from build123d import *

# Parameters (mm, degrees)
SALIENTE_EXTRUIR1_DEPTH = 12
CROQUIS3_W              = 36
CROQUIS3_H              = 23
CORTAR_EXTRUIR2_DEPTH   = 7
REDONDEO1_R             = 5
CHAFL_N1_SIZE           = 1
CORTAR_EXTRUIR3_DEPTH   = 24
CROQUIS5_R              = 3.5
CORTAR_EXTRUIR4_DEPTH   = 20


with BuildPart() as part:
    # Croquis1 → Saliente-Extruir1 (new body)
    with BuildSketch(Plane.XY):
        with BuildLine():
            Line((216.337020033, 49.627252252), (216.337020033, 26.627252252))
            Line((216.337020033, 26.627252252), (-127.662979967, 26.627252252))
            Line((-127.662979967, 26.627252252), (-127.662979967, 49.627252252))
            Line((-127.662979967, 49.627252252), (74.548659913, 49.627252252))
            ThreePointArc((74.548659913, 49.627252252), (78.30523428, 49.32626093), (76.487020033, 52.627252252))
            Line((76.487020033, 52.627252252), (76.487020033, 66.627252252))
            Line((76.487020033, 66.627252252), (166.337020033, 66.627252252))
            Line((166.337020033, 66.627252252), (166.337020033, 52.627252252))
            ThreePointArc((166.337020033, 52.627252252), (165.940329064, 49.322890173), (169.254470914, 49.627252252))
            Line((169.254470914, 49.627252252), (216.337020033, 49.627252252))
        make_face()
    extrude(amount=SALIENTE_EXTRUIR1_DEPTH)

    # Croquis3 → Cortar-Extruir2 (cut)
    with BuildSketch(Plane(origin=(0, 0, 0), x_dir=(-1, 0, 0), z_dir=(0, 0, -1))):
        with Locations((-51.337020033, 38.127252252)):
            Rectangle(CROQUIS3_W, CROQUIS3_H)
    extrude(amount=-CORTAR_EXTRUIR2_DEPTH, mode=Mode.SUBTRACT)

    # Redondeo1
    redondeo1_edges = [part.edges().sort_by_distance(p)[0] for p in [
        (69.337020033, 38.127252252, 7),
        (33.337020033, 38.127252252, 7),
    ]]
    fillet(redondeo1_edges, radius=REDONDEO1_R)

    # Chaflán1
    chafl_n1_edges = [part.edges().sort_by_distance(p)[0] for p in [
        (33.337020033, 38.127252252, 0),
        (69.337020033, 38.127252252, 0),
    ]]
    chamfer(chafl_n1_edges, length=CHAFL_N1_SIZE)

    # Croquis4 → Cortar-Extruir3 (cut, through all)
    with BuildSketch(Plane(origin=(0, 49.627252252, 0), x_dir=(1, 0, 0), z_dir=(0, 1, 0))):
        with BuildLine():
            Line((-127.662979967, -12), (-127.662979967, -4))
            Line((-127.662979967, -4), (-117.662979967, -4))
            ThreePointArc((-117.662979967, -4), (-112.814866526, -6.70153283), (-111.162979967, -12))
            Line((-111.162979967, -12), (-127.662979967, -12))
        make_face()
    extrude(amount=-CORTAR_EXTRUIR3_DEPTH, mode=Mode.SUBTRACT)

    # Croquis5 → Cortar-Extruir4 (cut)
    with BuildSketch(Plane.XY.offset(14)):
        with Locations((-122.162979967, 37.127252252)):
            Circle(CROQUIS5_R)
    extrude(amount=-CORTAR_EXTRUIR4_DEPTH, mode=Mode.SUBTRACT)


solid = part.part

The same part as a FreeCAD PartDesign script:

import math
import FreeCAD as App
import Part
import Sketcher
Q = App.Units.Quantity


def edges_at(feature, points):
    """Names of the edges that pass closest to the given points."""
    edges = feature.Shape.Edges
    near = lambda p: min(range(len(edges)), key=lambda i: edges[i].distToShape(Part.Vertex(*p))[0])
    return sorted({f"Edge{near(p) + 1}" for p in points})

doc = App.newDocument("Part")
body = doc.addObject("PartDesign::Body", "Body")

# Sketch on XY plane
sketch1 = doc.addObject("Sketcher::SketchObject", "Sketch")
body.addObject(sketch1)
sketch1.AttachmentSupport = (doc.XY_Plane, [""])
sketch1.MapMode = "FlatFace"
sketch1.addGeometry([
    Part.LineSegment(App.Vector(216.3, 26.6, 0), App.Vector(216.3, 49.6, 0)),  # 0
    Part.LineSegment(App.Vector(216.3, 49.6, 0), App.Vector(169.3, 49.6, 0)),  # 1
    Part.ArcOfCircle(Part.Circle(App.Vector(167.5, 50.8, 0), App.Vector(0, 0, 1), 2.1), math.radians(122), math.radians(326)),  # 2
    Part.LineSegment(App.Vector(166.3, 52.6, 0), App.Vector(166.3, 66.6, 0)),  # 3
    Part.LineSegment(App.Vector(166.3, 66.6, 0), App.Vector(76.5, 66.6, 0)),  # 4
    Part.LineSegment(App.Vector(76.5, 66.6, 0), App.Vector(76.5, 52.6, 0)),  # 5
    Part.ArcOfCircle(Part.Circle(App.Vector(76.5, 50.5, 0), App.Vector(0, 0, 1), 2.1), math.radians(-156), math.radians(91)),  # 6
    Part.LineSegment(App.Vector(74.5, 49.6, 0), App.Vector(-127.7, 49.6, 0)),  # 7
    Part.LineSegment(App.Vector(-127.7, 49.6, 0), App.Vector(-127.7, 26.6, 0)),  # 8
    Part.LineSegment(App.Vector(-127.7, 26.6, 0), App.Vector(216.3, 26.6, 0)),  # 9
], False)
sketch1.addConstraint([
    Sketcher.Constraint("Coincident", 0, 2, 1, 1),
    Sketcher.Constraint("Coincident", 1, 2, 2, 2),
    Sketcher.Constraint("Coincident", 2, 1, 3, 1),
    Sketcher.Constraint("Coincident", 3, 2, 4, 1),
    Sketcher.Constraint("Coincident", 4, 2, 5, 1),
    Sketcher.Constraint("Coincident", 5, 2, 6, 2),
    Sketcher.Constraint("Coincident", 6, 1, 7, 1),
    Sketcher.Constraint("Coincident", 7, 2, 8, 1),
    Sketcher.Constraint("Coincident", 8, 2, 9, 1),
    Sketcher.Constraint("Coincident", 9, 2, 0, 1),
    Sketcher.Constraint("Vertical", 0),
    Sketcher.Constraint("Horizontal", 1),
    Sketcher.Constraint("Vertical", 3),
    Sketcher.Constraint("Horizontal", 4),
    Sketcher.Constraint("Vertical", 5),
    Sketcher.Constraint("Horizontal", 7),
    Sketcher.Constraint("Vertical", 8),
    Sketcher.Constraint("Horizontal", 9),
    Sketcher.Constraint("Equal", 2, 6),
    Sketcher.Constraint("Horizontal", 2, 1, 5, 2),
    Sketcher.Constraint("Horizontal", 1, 2, 6, 1),
    Sketcher.Constraint("DistanceX", 9, 1, 9, 2, Q("344 mm")),
    Sketcher.Constraint("DistanceY", 0, 1, 0, 2, Q("23 mm")),
    Sketcher.Constraint("DistanceY", 3, 1, 3, 2, Q("14 mm")),
    Sketcher.Constraint("DistanceY", 1, 2, 2, 1, Q("3 mm")),
    Sketcher.Constraint("DistanceX", 2, 1, 0, 2, Q("50 mm")),
    Sketcher.Constraint("DistanceX", 4, 2, 4, 1, Q("89.85 mm")),
    Sketcher.Constraint("Radius", 2, Q("2.139822 mm")),
    Sketcher.Constraint("DistanceX", 1, 2, 1, 1, Q("47.082549 mm")),
    Sketcher.Constraint("DistanceX", 7, 2, 7, 1, Q("202.21164 mm")),
    Sketcher.Constraint("DistanceX", -1, 1, 2, 3, Q("167.47437 mm")),
    Sketcher.Constraint("DistanceY", -1, 1, 2, 3, Q("50.81472 mm")),
])
pad1 = doc.addObject("PartDesign::Pad", "Pad")
body.addObject(pad1)
pad1.Profile = sketch1
pad1.Length = 12

# Sketch on XY plane
sketch2 = doc.addObject("Sketcher::SketchObject", "Sketch001")
body.addObject(sketch2)
sketch2.AttachmentSupport = (doc.XY_Plane, [""])
sketch2.MapMode = "FlatFace"
sketch2.addGeometry([
    Part.LineSegment(App.Vector(69, 50, 0), App.Vector(69, 27, 0)),
    Part.LineSegment(App.Vector(69, 27, 0), App.Vector(33, 27, 0)),
    Part.LineSegment(App.Vector(33, 27, 0), App.Vector(33, 50, 0)),
    Part.LineSegment(App.Vector(33, 50, 0), App.Vector(69, 50, 0)),
], False)
sketch2.addConstraint([
    Sketcher.Constraint("Coincident", 0, 2, 1, 1),
    Sketcher.Constraint("Coincident", 1, 2, 2, 1),
    Sketcher.Constraint("Coincident", 2, 2, 3, 1),
    Sketcher.Constraint("Coincident", 3, 2, 0, 1),
    Sketcher.Constraint("Vertical", 0),
    Sketcher.Constraint("Horizontal", 1),
    Sketcher.Constraint("Vertical", 2),
    Sketcher.Constraint("Horizontal", 3),
    Sketcher.Constraint("DistanceX", 1, 2, 1, 1, Q("36 mm")),
    Sketcher.Constraint("DistanceY", 0, 2, 0, 1, Q("23 mm")),
    Sketcher.Constraint("DistanceX", -1, 1, 0, 2, Q("69.33702 mm")),
    Sketcher.Constraint("DistanceY", -1, 1, 0, 2, Q("26.627252 mm")),
])
pocket1 = doc.addObject("PartDesign::Pocket", "Pocket")
body.addObject(pocket1)
pocket1.Profile = sketch2
pocket1.Length = 7
pocket1.Reversed = True
doc.recompute()

fillet = doc.addObject("PartDesign::Fillet", "Fillet")
body.addObject(fillet)
fillet.Base = (pocket1, edges_at(pocket1, [(69.337, 38.127, 7), (33.337, 38.127, 7)]))
fillet.Radius = 5
doc.recompute()

chamfer = doc.addObject("PartDesign::Chamfer", "Chamfer")
body.addObject(chamfer)
chamfer.Base = (fillet, edges_at(fillet, [(33.337, 38.127, 0), (69.337, 38.127, 0)]))
chamfer.Size = 1

# Sketch on XZ plane
sketch3 = doc.addObject("Sketcher::SketchObject", "Sketch002")
body.addObject(sketch3)
sketch3.AttachmentSupport = (doc.XZ_Plane, [""])
sketch3.MapMode = "FlatFace"
sketch3.AttachmentOffset = App.Placement(App.Vector(0, 0, -49.627252), App.Rotation())
sketch3.addGeometry([
    Part.LineSegment(App.Vector(-128, 4, 0), App.Vector(-128, 12, 0)),
    Part.LineSegment(App.Vector(-128, 12, 0), App.Vector(-111, 12, 0)),
    Part.ArcOfCircle(Part.Circle(App.Vector(-119, 11, 0), App.Vector(0, 0, 1), 7), math.radians(-83), math.radians(4)),
    Part.LineSegment(App.Vector(-118, 4, 0), App.Vector(-128, 4, 0)),
], False)
sketch3.addConstraint([
    Sketcher.Constraint("Coincident", 0, 2, 1, 1),
    Sketcher.Constraint("Coincident", 1, 2, 2, 2),
    Sketcher.Constraint("Coincident", 2, 1, 3, 1),
    Sketcher.Constraint("Coincident", 3, 2, 0, 1),
    Sketcher.Constraint("Vertical", 0),
    Sketcher.Constraint("Horizontal", 1),
    Sketcher.Constraint("Horizontal", 3),
    Sketcher.Constraint("DistanceX", 3, 2, 3, 1, Q("10 mm")),
    Sketcher.Constraint("DistanceY", 0, 1, 0, 2, Q("8 mm")),
    Sketcher.Constraint("DistanceX", 1, 1, 1, 2, Q("16.5 mm")),
    Sketcher.Constraint("DistanceY", -1, 1, 0, 2, Q("12 mm")),
    Sketcher.Constraint("Radius", 2, Q("7.479519 mm")),
    Sketcher.Constraint("DistanceX", 0, 2, -1, 1, Q("127.66298 mm")),
])
pocket2 = doc.addObject("PartDesign::Pocket", "Pocket001")
body.addObject(pocket2)
pocket2.Profile = sketch3
pocket2.Type = "ThroughAll"
pocket2.Reversed = True

# Sketch on XY plane
sketch4 = doc.addObject("Sketcher::SketchObject", "Sketch003")
body.addObject(sketch4)
sketch4.AttachmentSupport = (doc.XY_Plane, [""])
sketch4.MapMode = "FlatFace"
sketch4.AttachmentOffset = App.Placement(App.Vector(0, 0, 14), App.Rotation())
sketch4.addGeometry(Part.Circle(App.Vector(-122.2, 37.1, 0), App.Vector(0, 0, 1), 3.5), False)
sketch4.addConstraint([
    Sketcher.Constraint("Diameter", 0, Q("7 mm")),
    Sketcher.Constraint("DistanceX", 0, 3, -1, 1, Q("122.16298 mm")),
    Sketcher.Constraint("DistanceY", -1, 1, 0, 3, Q("37.127252 mm")),
])
pocket3 = doc.addObject("PartDesign::Pocket", "Pocket002")
body.addObject(pocket3)
pocket3.Profile = sketch4
pocket3.Length = 20

doc.recompute()
